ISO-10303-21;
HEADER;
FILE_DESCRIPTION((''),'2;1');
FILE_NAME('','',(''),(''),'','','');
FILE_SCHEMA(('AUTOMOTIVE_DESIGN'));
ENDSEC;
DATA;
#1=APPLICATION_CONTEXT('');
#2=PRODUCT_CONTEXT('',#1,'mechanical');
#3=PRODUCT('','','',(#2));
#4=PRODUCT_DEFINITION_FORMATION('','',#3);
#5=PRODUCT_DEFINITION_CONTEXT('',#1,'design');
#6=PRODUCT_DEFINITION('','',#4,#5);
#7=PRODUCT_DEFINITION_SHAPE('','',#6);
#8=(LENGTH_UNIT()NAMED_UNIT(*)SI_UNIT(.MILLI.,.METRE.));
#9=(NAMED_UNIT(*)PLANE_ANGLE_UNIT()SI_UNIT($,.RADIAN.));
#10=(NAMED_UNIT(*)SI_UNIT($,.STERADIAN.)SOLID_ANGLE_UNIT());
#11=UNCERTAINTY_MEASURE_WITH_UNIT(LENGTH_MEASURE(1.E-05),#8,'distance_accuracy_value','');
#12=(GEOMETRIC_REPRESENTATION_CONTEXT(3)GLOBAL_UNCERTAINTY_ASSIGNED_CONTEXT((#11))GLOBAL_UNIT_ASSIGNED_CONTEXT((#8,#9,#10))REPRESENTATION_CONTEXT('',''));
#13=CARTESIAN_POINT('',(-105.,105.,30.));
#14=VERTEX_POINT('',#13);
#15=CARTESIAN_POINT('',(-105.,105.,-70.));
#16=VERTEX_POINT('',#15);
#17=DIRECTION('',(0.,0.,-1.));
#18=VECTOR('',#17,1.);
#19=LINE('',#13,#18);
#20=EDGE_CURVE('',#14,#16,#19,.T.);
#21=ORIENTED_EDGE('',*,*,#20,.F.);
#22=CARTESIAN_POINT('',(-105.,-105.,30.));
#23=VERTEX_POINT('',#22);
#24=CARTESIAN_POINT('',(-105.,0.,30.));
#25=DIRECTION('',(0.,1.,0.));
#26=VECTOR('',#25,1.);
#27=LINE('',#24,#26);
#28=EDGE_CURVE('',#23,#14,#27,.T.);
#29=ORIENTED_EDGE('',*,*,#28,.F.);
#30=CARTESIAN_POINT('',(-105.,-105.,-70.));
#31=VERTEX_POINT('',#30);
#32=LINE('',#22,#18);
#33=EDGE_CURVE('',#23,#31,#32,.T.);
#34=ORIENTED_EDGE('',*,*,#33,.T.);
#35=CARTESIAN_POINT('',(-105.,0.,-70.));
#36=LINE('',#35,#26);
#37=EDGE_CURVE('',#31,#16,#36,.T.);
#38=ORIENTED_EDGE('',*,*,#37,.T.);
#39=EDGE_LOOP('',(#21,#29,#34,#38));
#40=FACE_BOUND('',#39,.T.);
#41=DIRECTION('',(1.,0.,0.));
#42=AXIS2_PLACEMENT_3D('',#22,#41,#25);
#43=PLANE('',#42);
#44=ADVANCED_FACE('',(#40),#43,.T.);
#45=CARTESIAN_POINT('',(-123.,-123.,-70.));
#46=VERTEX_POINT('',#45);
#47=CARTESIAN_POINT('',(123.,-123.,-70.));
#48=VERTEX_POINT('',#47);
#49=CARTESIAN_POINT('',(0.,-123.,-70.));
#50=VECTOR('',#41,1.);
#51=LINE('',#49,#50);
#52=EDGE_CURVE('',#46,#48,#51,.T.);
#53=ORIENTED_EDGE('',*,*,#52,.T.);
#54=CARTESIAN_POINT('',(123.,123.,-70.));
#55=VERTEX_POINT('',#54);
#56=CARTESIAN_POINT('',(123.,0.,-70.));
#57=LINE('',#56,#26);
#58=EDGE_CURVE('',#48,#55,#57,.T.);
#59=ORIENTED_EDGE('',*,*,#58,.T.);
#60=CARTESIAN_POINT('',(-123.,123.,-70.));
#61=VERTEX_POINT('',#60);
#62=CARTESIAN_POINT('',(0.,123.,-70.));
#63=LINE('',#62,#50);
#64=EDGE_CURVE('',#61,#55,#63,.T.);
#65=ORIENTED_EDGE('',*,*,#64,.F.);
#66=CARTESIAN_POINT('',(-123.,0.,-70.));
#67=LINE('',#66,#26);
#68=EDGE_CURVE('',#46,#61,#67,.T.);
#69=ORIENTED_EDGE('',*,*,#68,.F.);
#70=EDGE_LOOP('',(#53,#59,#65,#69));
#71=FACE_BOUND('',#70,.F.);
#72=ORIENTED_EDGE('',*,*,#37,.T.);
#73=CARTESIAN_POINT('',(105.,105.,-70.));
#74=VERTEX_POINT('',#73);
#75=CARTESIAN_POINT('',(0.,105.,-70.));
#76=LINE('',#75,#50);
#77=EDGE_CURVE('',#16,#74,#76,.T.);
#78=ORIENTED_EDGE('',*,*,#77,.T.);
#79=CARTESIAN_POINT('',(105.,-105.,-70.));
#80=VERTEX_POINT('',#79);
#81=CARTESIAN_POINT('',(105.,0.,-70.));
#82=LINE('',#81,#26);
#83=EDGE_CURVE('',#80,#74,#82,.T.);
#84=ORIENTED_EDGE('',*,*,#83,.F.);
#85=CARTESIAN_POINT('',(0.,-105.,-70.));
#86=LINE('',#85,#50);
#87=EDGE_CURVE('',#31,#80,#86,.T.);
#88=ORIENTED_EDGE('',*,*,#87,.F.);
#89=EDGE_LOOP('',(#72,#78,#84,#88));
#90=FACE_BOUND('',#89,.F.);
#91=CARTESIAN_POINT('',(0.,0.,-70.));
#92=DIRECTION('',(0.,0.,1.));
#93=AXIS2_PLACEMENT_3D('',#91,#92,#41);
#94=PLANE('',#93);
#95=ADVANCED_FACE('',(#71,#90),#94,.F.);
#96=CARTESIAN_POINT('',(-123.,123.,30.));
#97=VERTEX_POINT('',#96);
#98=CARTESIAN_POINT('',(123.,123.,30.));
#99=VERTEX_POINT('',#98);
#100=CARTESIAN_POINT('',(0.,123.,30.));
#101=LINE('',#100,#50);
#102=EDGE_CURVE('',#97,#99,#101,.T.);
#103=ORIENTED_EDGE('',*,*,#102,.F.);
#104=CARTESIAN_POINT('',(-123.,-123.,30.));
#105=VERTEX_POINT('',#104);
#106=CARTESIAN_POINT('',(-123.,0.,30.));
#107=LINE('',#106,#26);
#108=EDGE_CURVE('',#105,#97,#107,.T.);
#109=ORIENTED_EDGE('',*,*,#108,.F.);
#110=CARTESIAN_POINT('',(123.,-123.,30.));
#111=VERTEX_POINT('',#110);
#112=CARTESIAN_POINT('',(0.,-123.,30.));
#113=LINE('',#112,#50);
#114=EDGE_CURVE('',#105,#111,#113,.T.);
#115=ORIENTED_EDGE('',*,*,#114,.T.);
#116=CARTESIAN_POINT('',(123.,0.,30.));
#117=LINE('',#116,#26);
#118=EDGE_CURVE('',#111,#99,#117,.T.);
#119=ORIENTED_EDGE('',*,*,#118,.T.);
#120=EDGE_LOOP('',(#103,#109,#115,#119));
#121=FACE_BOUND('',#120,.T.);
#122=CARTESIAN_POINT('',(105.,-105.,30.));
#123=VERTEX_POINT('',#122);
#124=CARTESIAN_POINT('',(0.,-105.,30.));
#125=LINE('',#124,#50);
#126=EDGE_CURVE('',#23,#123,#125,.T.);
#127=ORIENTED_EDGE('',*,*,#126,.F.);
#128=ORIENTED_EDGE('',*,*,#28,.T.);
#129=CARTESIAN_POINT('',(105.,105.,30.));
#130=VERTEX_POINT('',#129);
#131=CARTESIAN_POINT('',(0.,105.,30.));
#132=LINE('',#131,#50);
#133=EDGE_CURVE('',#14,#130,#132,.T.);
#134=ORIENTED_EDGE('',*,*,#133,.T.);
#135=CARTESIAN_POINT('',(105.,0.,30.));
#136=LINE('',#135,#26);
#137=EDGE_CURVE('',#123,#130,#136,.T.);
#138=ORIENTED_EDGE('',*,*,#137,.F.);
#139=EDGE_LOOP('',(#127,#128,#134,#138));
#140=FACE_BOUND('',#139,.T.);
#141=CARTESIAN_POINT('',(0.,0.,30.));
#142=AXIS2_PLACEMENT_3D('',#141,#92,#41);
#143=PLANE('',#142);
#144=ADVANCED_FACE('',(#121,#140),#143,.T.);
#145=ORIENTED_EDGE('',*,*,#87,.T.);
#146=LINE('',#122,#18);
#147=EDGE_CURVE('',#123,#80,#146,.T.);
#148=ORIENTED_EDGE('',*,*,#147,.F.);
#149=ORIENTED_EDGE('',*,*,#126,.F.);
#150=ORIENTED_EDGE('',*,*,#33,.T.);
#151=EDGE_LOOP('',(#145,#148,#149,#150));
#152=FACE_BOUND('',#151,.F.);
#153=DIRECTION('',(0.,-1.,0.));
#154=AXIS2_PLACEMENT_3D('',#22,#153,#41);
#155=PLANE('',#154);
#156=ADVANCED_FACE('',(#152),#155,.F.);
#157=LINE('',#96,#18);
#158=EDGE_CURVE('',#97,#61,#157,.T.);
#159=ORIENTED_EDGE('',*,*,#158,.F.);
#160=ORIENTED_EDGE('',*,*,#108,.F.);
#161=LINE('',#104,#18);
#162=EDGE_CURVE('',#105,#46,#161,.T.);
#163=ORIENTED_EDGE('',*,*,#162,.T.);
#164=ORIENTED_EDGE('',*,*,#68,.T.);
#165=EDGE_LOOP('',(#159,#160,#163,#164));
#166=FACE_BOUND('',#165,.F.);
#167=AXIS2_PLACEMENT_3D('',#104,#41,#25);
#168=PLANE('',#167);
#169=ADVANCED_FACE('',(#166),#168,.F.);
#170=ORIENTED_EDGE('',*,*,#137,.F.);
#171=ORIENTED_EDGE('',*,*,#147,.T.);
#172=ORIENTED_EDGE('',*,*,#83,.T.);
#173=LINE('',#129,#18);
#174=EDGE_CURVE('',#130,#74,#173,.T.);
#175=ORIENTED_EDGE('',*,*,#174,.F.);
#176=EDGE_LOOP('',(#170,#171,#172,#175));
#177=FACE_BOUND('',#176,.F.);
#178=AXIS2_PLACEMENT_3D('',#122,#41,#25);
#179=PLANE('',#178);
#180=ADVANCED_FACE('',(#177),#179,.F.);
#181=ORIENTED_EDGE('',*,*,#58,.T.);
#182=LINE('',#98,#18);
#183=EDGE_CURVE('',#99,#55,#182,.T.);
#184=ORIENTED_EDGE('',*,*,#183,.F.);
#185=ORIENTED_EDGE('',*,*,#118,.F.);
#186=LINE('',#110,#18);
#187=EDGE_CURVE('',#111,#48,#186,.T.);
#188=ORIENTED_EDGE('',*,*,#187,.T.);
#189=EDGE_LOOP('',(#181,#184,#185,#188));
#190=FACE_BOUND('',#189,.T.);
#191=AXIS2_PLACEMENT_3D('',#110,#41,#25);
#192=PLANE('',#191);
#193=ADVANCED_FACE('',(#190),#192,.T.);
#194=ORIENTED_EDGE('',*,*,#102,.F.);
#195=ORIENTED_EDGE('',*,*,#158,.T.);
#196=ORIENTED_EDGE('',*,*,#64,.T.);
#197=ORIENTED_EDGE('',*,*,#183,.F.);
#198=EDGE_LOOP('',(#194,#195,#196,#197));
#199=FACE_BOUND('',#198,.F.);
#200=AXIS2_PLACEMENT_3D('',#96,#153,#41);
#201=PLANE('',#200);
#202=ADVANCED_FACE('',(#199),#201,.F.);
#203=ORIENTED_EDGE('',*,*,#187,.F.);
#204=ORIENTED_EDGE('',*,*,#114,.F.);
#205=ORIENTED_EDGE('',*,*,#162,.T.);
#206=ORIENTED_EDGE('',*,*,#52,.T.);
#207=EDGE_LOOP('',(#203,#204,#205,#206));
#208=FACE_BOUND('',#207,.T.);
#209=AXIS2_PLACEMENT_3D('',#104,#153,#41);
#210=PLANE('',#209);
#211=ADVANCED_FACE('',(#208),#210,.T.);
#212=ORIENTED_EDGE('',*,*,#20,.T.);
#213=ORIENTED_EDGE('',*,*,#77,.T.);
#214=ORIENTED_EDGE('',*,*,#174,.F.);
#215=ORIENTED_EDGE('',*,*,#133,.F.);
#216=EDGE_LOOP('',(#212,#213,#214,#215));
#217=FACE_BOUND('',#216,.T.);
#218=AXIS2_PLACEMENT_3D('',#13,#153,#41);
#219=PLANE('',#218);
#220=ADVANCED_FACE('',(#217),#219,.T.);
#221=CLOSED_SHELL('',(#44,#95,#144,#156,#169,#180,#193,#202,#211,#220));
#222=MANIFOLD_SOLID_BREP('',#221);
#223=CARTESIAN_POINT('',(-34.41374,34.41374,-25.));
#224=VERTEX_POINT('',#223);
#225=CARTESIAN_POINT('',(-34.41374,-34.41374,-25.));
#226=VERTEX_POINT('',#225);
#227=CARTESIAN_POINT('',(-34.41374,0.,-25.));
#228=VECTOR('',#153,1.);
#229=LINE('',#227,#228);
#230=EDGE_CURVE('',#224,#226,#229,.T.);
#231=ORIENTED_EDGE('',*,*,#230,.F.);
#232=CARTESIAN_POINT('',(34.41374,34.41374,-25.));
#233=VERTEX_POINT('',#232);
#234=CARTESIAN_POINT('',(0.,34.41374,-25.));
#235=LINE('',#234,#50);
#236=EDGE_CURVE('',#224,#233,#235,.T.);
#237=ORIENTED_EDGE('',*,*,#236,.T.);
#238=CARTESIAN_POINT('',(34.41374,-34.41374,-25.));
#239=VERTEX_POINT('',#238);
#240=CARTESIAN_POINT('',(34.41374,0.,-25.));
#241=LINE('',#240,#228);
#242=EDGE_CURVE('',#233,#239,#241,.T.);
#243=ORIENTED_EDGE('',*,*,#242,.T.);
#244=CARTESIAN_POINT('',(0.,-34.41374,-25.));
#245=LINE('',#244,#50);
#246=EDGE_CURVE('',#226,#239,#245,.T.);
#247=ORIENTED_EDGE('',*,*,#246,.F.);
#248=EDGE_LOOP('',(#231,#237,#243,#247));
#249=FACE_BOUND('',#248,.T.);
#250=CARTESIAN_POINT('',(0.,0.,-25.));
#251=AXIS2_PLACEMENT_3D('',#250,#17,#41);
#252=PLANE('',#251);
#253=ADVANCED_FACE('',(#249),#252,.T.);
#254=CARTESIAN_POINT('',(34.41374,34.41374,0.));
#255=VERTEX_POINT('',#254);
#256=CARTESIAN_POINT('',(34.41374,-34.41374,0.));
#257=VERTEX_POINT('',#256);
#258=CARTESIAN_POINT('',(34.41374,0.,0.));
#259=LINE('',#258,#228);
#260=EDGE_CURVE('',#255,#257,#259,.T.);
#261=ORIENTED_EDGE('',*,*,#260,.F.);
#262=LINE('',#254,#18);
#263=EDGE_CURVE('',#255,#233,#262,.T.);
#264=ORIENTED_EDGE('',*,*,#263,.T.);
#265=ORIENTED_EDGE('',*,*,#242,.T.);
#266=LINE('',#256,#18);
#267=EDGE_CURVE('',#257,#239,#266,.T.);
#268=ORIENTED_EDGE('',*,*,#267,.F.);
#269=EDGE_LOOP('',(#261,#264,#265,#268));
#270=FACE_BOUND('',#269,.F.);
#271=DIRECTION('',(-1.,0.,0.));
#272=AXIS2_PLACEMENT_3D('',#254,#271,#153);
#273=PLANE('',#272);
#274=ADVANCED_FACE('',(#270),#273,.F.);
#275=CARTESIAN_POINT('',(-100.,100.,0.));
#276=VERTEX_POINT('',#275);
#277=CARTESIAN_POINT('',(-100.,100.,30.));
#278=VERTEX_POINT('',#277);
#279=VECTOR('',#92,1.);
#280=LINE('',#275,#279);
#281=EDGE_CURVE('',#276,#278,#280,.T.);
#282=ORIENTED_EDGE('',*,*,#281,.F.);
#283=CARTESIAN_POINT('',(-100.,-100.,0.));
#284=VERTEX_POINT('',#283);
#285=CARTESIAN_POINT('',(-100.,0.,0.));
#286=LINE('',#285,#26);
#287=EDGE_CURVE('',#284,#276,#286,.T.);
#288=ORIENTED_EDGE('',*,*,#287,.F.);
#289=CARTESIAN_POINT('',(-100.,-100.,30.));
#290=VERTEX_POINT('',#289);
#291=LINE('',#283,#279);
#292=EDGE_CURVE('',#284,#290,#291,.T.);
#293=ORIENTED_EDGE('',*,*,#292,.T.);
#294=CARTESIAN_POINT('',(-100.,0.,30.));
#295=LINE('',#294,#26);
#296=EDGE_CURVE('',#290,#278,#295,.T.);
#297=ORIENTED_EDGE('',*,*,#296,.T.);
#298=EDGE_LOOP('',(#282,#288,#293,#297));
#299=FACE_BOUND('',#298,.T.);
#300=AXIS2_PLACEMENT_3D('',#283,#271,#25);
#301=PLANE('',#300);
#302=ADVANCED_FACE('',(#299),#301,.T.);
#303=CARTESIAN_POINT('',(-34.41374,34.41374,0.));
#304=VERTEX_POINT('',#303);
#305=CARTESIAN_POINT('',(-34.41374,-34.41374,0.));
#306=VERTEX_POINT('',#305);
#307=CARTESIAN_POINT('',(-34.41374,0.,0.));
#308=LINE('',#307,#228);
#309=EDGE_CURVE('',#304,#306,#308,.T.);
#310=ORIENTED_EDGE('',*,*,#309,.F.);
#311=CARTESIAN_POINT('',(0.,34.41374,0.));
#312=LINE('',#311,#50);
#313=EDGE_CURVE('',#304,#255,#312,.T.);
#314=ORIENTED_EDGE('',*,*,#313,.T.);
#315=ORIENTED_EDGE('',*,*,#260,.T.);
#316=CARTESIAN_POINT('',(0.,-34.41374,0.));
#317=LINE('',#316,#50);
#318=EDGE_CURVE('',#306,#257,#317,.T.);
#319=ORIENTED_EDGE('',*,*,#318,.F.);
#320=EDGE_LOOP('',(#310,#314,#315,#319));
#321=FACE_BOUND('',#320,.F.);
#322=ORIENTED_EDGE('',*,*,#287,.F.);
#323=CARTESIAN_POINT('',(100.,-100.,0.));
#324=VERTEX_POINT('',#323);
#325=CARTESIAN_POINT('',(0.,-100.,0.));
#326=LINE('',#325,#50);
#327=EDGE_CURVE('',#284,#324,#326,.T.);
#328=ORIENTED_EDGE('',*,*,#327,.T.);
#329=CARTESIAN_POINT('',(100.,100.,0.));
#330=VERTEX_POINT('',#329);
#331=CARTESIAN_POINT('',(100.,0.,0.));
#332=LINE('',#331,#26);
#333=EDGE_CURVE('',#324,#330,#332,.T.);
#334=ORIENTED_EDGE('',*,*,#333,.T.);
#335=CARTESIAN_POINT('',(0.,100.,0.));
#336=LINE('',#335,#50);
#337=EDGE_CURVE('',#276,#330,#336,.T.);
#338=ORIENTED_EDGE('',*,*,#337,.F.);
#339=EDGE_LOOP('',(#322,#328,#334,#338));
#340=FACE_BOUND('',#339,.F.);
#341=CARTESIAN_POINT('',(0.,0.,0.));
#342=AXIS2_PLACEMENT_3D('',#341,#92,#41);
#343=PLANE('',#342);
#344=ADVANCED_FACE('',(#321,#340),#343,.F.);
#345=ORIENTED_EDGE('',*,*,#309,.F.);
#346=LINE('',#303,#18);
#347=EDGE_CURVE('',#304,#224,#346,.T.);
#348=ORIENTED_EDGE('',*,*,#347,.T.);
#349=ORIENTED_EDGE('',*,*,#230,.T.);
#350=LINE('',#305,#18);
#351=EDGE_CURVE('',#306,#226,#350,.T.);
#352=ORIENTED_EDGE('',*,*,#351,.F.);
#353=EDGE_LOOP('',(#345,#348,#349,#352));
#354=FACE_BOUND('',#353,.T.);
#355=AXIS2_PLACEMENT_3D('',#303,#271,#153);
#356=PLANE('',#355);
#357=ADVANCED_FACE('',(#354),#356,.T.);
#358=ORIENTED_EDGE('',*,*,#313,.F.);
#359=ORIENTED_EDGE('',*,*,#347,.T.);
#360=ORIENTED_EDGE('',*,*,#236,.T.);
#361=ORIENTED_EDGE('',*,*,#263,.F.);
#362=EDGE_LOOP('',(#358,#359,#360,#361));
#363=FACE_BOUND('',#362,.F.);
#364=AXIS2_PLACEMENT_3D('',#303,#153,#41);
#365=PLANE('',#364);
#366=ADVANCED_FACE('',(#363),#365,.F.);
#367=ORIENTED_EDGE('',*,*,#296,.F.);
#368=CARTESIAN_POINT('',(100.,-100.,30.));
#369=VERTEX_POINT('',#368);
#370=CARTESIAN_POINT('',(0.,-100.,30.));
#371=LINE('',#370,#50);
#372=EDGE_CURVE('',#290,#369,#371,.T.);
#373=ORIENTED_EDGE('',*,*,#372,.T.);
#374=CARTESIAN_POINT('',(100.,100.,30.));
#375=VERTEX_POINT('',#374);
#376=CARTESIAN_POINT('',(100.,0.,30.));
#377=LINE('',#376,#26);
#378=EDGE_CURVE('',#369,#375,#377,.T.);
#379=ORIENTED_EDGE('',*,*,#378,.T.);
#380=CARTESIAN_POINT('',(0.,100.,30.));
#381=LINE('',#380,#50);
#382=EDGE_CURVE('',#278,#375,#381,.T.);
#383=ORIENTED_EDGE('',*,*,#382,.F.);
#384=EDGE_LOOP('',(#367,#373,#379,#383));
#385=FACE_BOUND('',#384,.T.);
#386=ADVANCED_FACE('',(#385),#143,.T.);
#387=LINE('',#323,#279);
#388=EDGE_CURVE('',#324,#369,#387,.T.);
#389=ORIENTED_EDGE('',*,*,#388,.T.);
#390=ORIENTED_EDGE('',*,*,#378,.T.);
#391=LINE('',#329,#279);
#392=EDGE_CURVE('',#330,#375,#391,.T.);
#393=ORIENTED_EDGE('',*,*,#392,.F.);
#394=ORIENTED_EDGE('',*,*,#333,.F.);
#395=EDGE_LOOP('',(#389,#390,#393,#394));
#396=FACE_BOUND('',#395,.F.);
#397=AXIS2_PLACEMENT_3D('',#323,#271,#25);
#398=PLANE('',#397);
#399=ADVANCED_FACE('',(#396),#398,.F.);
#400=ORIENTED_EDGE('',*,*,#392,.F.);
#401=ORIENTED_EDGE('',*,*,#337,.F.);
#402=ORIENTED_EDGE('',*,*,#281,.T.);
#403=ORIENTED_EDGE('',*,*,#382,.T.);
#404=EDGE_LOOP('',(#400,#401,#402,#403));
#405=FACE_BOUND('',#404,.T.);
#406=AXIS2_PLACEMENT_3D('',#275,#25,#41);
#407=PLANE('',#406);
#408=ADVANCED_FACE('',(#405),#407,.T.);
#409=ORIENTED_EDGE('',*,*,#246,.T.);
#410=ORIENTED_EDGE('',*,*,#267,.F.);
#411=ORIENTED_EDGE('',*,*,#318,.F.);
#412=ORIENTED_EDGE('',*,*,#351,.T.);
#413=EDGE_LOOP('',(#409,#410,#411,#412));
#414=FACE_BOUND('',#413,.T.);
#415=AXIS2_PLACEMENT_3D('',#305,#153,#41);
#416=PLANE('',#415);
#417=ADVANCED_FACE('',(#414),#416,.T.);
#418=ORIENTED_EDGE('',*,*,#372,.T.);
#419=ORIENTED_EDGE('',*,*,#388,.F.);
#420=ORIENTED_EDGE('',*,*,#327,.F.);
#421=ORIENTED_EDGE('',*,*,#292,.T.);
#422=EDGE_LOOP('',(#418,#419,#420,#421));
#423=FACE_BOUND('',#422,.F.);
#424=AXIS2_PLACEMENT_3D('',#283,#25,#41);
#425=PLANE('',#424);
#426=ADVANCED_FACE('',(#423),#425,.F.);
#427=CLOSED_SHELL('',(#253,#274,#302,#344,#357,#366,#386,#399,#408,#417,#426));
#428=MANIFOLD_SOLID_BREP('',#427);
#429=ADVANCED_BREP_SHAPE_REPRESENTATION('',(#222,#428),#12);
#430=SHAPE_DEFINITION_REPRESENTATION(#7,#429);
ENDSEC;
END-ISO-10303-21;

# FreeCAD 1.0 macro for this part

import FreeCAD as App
import Part
import Sketcher

V = App.Vector

doc = App.newDocument("Part")
body = doc.addObject("PartDesign::Body", "Body")

# Sketch on XY plane
sketch1 = body.newObject("Sketcher::SketchObject", "Sketch")
sketch1.AttachmentSupport = (doc.getObject("XY_Plane"), [""])
sketch1.MapMode = "FlatFace"
sketch1.addGeometry([
    Part.LineSegment(V(-100, 100, 0), V(-100, -100, 0)),
    Part.LineSegment(V(-100, -100, 0), V(100, -100, 0)),
    Part.LineSegment(V(100, -100, 0), V(100, 100, 0)),
    Part.LineSegment(V(100, 100, 0), V(-100, 100, 0)),
], False)
sketch1.addConstraint([
    Sketcher.Constraint("Coincident", 0, 2, 1, 1),
    Sketcher.Constraint("Coincident", 1, 2, 2, 1),
    Sketcher.Constraint("Coincident", 2, 2, 3, 1),
    Sketcher.Constraint("Coincident", 3, 2, 0, 1),
    Sketcher.Constraint("Vertical", 0),
    Sketcher.Constraint("Horizontal", 1),
    Sketcher.Constraint("Vertical", 2),
    Sketcher.Constraint("Horizontal", 3),
    Sketcher.Constraint("Symmetric", 0, 2, 2, 2, -1, 1),
    Sketcher.Constraint("Equal", 3, 0),
    Sketcher.Constraint("DistanceX", 1, 1, 1, 2, 200.0),
])
pad1 = body.newObject("PartDesign::Pad", "Pad")
pad1.Profile = sketch1
pad1.Length = 30

# Sketch on XY plane
sketch2 = body.newObject("Sketcher::SketchObject", "Sketch001")
sketch2.AttachmentSupport = (doc.getObject("XY_Plane"), [""])
sketch2.MapMode = "FlatFace"
sketch2.addGeometry([
    Part.LineSegment(V(-34, -34, 0), V(-34, 34, 0)),
    Part.LineSegment(V(-34, 34, 0), V(34, 34, 0)),
    Part.LineSegment(V(34, 34, 0), V(34, -34, 0)),
    Part.LineSegment(V(34, -34, 0), V(-34, -34, 0)),
], False)
sketch2.addConstraint([
    Sketcher.Constraint("Coincident", 0, 2, 1, 1),
    Sketcher.Constraint("Coincident", 1, 2, 2, 1),
    Sketcher.Constraint("Coincident", 2, 2, 3, 1),
    Sketcher.Constraint("Coincident", 3, 2, 0, 1),
    Sketcher.Constraint("Vertical", 0),
    Sketcher.Constraint("Horizontal", 1),
    Sketcher.Constraint("Vertical", 2),
    Sketcher.Constraint("Horizontal", 3),
    Sketcher.Constraint("Symmetric", 0, 2, 2, 2, -1, 1),
    Sketcher.Constraint("Equal", 3, 0),
    Sketcher.Constraint("DistanceX", 1, 1, 1, 2, 68.82748),
])
pad2 = body.newObject("PartDesign::Pad", "Pad001")
pad2.Profile = sketch2
pad2.Length = 25
pad2.Reversed = True
body2 = doc.addObject("PartDesign::Body", "Body001")

# Sketch on XY plane
sketch3 = body2.newObject("Sketcher::SketchObject", "Sketch002")
sketch3.AttachmentSupport = (doc.getObject("XY_Plane001"), [""])
sketch3.MapMode = "FlatFace"
sketch3.AttachmentOffset = App.Placement(V(0, 0, 30), App.Rotation())
sketch3.addGeometry([
    Part.LineSegment(V(-123, 123, 0), V(-123, -123, 0)),  # 0
    Part.LineSegment(V(-123, -123, 0), V(123, -123, 0)),  # 1
    Part.LineSegment(V(123, -123, 0), V(123, 123, 0)),  # 2
    Part.LineSegment(V(123, 123, 0), V(-123, 123, 0)),  # 3
    Part.LineSegment(V(105, -105, 0), V(-105, -105, 0)),  # 4
    Part.LineSegment(V(-105, -105, 0), V(-105, 105, 0)),  # 5
    Part.LineSegment(V(-105, 105, 0), V(105, 105, 0)),  # 6
    Part.LineSegment(V(105, 105, 0), V(105, -105, 0)),  # 7
], False)
sketch3.addConstraint([
    Sketcher.Constraint("Coincident", 0, 2, 1, 1),
    Sketcher.Constraint("Coincident", 1, 2, 2, 1),
    Sketcher.Constraint("Coincident", 2, 2, 3, 1),
    Sketcher.Constraint("Coincident", 3, 2, 0, 1),
    Sketcher.Constraint("Coincident", 4, 2, 5, 1),
    Sketcher.Constraint("Coincident", 5, 2, 6, 1),
    Sketcher.Constraint("Coincident", 6, 2, 7, 1),
    Sketcher.Constraint("Coincident", 7, 2, 4, 1),
    Sketcher.Constraint("Vertical", 0),
    Sketcher.Constraint("Horizontal", 1),
    Sketcher.Constraint("Vertical", 2),
    Sketcher.Constraint("Horizontal", 3),
    Sketcher.Constraint("Horizontal", 4),
    Sketcher.Constraint("Vertical", 5),
    Sketcher.Constraint("Horizontal", 6),
    Sketcher.Constraint("Vertical", 7),
    Sketcher.Constraint("Symmetric", 0, 2, 2, 2, -1, 1),
    Sketcher.Constraint("Symmetric", 4, 2, 6, 2, -1, 1),
    Sketcher.Constraint("Equal", 3, 0),
    Sketcher.Constraint("Equal", 6, 5),
    Sketcher.Constraint("DistanceX", 1, 1, 1, 2, 246.0),
    Sketcher.Constraint("DistanceX", 4, 2, 4, 1, 210.0),
])
pad3 = body2.newObject("PartDesign::Pad", "Pad002")
pad3.Profile = sketch3
pad3.Length = 100
pad3.Reversed = True

doc.recompute()
